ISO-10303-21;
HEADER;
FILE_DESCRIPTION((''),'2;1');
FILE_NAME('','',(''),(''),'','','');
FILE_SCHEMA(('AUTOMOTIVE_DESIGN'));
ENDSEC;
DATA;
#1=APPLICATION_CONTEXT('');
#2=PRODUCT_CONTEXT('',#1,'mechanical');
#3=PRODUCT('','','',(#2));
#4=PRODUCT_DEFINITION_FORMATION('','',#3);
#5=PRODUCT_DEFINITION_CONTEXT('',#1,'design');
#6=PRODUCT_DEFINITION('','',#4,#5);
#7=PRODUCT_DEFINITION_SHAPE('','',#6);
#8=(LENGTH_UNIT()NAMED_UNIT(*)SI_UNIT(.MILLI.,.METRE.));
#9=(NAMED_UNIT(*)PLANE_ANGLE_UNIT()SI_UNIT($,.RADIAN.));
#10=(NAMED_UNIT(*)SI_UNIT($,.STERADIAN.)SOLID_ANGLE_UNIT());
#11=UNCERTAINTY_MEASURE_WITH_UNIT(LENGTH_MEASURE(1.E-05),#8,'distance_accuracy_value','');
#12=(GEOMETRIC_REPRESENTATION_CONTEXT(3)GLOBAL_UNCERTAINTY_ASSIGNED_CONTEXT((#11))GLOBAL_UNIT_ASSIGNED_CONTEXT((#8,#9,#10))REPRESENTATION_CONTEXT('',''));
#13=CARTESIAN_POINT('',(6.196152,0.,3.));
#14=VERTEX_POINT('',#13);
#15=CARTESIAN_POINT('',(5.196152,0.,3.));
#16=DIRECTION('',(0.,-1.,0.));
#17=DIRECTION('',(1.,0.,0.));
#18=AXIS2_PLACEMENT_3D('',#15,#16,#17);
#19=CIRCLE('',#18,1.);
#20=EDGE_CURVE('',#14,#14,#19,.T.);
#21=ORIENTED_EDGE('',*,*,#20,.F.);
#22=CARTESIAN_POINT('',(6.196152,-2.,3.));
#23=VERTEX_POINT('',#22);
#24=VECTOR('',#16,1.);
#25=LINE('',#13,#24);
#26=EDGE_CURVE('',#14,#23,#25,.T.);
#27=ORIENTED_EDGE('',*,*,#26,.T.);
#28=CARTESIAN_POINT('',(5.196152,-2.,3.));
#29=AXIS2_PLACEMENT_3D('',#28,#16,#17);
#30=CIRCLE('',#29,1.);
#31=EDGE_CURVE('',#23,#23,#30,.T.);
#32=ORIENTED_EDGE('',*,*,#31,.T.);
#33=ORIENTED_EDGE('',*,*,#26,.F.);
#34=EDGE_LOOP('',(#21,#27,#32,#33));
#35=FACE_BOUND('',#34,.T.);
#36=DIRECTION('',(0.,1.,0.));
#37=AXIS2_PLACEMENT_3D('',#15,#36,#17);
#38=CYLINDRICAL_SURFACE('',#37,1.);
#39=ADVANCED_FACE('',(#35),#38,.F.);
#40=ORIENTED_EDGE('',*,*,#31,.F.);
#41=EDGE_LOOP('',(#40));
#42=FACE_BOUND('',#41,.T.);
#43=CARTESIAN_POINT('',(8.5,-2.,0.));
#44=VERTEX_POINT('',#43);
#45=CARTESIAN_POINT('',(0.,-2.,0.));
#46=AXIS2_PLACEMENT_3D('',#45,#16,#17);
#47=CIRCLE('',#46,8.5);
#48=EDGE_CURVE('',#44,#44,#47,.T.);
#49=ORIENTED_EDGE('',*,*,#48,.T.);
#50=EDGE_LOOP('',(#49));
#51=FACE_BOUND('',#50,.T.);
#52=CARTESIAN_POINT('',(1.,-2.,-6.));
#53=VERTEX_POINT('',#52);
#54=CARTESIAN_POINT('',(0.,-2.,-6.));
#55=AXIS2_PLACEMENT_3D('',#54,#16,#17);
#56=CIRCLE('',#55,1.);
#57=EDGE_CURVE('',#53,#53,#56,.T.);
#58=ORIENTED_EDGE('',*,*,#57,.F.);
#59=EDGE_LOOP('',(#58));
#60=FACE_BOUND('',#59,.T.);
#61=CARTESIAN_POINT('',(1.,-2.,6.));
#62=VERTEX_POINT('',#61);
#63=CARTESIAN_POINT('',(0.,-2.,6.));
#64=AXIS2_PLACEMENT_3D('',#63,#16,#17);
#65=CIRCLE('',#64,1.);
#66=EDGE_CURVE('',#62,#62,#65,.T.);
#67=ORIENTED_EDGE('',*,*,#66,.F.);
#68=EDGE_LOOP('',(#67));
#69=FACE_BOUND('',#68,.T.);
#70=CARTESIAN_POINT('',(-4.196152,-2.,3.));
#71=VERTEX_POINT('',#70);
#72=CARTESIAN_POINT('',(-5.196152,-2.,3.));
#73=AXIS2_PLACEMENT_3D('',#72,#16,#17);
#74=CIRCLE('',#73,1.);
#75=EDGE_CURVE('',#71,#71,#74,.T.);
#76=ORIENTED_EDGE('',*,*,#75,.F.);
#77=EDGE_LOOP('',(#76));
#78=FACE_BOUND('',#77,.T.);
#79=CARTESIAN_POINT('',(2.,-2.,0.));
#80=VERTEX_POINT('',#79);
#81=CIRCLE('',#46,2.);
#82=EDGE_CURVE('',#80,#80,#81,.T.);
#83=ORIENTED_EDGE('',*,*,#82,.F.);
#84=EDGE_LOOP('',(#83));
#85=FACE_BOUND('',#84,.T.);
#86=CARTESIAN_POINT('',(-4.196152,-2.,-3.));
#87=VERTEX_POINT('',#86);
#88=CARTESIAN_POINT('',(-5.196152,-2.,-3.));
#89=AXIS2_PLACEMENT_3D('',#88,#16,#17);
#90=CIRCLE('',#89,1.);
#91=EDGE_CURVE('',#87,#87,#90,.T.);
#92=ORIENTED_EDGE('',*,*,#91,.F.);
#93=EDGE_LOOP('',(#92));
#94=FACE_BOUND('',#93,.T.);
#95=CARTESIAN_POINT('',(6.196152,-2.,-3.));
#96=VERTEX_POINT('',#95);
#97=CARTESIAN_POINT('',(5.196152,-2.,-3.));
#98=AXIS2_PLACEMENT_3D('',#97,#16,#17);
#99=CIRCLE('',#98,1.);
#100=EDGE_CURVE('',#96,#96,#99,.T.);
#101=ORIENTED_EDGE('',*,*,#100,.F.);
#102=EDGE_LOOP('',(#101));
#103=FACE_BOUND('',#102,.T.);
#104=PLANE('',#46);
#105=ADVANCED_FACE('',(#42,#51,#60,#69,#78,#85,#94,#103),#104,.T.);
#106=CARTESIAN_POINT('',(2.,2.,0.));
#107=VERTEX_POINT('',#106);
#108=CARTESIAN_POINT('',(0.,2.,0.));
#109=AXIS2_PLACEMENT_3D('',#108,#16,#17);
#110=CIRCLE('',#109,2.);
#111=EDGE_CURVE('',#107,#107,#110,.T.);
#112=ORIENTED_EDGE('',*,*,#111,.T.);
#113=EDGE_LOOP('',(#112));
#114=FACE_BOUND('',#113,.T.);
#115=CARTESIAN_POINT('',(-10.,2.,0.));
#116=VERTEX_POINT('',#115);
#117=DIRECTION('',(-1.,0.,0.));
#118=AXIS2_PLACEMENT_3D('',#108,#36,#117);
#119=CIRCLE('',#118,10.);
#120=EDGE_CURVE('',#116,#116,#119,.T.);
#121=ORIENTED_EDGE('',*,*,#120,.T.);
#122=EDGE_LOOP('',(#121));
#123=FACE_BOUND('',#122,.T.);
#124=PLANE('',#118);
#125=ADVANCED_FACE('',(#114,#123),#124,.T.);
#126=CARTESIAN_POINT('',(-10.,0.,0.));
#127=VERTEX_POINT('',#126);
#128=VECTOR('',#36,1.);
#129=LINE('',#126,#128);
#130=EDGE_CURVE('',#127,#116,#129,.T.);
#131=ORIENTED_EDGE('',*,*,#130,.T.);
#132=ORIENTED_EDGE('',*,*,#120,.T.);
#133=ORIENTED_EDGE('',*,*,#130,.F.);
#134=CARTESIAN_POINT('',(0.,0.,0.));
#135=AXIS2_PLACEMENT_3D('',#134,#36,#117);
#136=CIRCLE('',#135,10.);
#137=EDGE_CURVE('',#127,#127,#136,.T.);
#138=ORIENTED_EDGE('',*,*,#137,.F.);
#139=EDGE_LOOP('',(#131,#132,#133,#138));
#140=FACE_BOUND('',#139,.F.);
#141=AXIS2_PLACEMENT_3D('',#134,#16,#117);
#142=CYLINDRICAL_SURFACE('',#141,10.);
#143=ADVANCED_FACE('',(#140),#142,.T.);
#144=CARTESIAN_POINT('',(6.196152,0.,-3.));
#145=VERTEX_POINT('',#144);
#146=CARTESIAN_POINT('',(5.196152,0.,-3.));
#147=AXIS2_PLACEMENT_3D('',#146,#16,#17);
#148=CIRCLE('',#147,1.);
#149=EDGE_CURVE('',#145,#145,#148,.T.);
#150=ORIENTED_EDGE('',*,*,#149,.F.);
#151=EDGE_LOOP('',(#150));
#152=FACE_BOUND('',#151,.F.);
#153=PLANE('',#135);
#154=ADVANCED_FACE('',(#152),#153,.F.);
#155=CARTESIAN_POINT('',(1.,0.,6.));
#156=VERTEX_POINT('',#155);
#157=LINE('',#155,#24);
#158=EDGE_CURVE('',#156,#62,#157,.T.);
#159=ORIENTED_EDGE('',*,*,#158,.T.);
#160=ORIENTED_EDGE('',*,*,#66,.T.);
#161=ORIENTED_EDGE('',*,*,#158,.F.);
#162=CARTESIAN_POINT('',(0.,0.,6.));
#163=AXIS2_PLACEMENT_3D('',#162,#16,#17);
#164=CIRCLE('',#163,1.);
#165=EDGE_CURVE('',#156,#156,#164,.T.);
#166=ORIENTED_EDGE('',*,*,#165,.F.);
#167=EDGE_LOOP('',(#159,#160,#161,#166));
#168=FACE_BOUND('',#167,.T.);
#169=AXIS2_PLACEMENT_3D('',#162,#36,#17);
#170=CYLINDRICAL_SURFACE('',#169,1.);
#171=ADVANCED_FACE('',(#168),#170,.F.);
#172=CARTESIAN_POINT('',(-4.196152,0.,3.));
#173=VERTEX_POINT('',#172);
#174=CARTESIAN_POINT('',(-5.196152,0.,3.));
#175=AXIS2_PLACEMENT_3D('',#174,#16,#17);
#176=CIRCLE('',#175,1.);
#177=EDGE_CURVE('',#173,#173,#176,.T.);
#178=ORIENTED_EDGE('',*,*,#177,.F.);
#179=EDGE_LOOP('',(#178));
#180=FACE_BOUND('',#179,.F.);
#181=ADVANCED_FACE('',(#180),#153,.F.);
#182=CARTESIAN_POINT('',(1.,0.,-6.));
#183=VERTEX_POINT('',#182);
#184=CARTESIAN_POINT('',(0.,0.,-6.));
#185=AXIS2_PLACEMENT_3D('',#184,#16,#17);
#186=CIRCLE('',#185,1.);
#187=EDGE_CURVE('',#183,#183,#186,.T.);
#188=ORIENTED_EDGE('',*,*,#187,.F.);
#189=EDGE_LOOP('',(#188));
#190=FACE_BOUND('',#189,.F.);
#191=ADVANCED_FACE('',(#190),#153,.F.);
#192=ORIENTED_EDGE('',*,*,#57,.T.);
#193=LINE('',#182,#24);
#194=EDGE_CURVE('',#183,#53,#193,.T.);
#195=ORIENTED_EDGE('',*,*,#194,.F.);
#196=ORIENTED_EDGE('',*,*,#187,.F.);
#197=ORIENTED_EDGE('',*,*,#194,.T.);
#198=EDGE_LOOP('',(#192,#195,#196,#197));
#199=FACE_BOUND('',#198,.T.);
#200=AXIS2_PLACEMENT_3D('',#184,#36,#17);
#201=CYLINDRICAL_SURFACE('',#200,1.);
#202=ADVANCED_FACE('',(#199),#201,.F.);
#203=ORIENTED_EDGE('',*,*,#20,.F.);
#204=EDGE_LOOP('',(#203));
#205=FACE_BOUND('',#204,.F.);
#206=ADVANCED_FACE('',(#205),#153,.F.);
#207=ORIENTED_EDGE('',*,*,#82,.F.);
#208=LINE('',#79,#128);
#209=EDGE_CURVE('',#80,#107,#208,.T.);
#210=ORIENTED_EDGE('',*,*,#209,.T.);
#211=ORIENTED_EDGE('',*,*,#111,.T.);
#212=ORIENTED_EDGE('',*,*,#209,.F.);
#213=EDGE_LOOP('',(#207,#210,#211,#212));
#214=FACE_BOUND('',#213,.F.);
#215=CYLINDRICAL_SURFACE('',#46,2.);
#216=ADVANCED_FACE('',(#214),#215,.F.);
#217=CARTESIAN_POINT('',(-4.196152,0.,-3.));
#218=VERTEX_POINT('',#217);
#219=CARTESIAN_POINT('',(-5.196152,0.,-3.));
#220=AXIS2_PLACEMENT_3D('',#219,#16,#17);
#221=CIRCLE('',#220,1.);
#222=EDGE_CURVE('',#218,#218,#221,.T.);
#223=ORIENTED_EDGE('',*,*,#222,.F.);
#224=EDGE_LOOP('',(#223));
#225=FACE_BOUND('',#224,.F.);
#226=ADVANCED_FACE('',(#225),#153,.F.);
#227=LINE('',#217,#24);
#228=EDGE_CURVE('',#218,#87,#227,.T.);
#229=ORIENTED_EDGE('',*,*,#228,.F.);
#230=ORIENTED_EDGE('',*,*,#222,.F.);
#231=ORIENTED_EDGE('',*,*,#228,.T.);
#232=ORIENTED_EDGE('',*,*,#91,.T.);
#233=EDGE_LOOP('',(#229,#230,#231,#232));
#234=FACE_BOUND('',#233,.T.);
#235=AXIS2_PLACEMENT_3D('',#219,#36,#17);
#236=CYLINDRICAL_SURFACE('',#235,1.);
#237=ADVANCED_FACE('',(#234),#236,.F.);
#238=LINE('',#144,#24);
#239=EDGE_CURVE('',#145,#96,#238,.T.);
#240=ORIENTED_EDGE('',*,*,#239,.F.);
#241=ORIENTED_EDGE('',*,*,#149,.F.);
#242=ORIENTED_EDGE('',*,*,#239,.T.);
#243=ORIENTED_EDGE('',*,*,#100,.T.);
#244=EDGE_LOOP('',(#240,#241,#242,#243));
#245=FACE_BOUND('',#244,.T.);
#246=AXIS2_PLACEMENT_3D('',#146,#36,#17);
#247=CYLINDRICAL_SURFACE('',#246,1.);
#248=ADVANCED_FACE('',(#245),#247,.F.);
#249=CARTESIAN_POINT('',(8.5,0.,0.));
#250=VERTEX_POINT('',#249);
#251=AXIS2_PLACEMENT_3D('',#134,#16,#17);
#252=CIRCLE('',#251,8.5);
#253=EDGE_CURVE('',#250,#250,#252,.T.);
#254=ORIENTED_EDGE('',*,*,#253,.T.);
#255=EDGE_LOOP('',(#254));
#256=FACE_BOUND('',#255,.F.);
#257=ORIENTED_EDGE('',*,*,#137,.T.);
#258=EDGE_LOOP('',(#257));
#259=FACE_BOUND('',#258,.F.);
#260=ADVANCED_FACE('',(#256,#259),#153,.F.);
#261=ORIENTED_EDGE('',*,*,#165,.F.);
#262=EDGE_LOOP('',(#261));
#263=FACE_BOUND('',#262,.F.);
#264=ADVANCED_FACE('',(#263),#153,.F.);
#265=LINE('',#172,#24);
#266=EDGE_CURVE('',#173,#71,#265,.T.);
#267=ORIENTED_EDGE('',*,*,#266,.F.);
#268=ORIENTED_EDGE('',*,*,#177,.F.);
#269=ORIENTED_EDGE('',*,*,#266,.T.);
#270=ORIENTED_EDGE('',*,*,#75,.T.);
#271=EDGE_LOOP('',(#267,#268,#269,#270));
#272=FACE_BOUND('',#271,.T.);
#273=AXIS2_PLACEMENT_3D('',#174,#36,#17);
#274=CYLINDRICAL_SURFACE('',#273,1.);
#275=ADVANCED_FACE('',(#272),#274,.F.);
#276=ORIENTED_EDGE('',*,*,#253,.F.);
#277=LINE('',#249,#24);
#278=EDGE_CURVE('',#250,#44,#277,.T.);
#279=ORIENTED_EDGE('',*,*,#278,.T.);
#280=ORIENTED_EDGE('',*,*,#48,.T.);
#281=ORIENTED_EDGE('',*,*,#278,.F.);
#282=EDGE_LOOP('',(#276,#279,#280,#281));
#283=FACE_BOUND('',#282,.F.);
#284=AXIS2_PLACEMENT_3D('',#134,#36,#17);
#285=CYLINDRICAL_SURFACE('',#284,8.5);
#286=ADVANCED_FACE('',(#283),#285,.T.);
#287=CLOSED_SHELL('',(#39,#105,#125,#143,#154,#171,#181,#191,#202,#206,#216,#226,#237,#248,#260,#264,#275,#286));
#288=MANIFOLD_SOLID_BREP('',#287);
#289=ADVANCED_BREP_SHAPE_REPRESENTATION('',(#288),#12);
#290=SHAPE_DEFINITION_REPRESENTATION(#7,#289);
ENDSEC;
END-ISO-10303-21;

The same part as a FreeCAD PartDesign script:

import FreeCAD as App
import Part
import Sketcher
Q = App.Units.Quantity

doc = App.newDocument("Part")
body = doc.addObject("PartDesign::Body", "Body")

# Sketch on XZ plane
sketch1 = doc.addObject("Sketcher::SketchObject", "Sketch")
body.addObject(sketch1)
sketch1.AttachmentSupport = (doc.XZ_Plane, [""])
sketch1.MapMode = "FlatFace"
sketch1.addGeometry(Part.Circle(App.Vector(0, 0, 0), App.Vector(0, 0, 1), 8.5), False)
sketch1.addGeometry(Part.Circle(App.Vector(0, -6, 0), App.Vector(0, 0, 1), 1), False)
sketch1.addGeometry(Part.Circle(App.Vector(-5.2, -3, 0), App.Vector(0, 0, 1), 1), False)
sketch1.addGeometry(Part.Circle(App.Vector(5.2, -3, 0), App.Vector(0, 0, 1), 1), False)
sketch1.addGeometry(Part.Circle(App.Vector(-5.2, 3, 0), App.Vector(0, 0, 1), 1), False)
sketch1.addGeometry(Part.Circle(App.Vector(0, 6, 0), App.Vector(0, 0, 1), 1), False)
sketch1.addGeometry(Part.Circle(App.Vector(5.2, 3, 0), App.Vector(0, 0, 1), 1), False)
sketch1.addConstraint(Sketcher.Constraint("Coincident", 0, 3, -1, 1))
sketch1.addConstraint(Sketcher.Constraint("Equal", 1, 2))
sketch1.addConstraint(Sketcher.Constraint("Equal", 2, 3))
sketch1.addConstraint(Sketcher.Constraint("Equal", 3, 4))
sketch1.addConstraint(Sketcher.Constraint("Equal", 4, 5))
sketch1.addConstraint(Sketcher.Constraint("Equal", 5, 6))
sketch1.addConstraint(Sketcher.Constraint("Symmetric", 3, 3, 4, 3, -1, 1))
sketch1.addConstraint(Sketcher.Constraint("Symmetric", 1, 3, 5, 3, -1, 1))
sketch1.addConstraint(Sketcher.Constraint("Symmetric", 2, 3, 6, 3, -1, 1))
sketch1.addConstraint(Sketcher.Constraint("Symmetric", 2, 3, 3, 3, -2))
sketch1.addConstraint(Sketcher.Constraint("PointOnObject", 1, 3, -2))
sketch1.addConstraint(Sketcher.Constraint("Diameter", 0, Q("17 mm")))
sketch1.addConstraint(Sketcher.Constraint("Diameter", 1, Q("2 mm")))
sketch1.addConstraint(Sketcher.Constraint("DistanceY", 1, 3, -1, 1, Q("6 mm")))
sketch1.addConstraint(Sketcher.Constraint("DistanceY", 2, 3, -1, 1, Q("3 mm")))
sketch1.addConstraint(Sketcher.Constraint("DistanceX", 2, 3, -1, 1, Q("5.196152 mm")))
pad1 = doc.addObject("PartDesign::Pad", "Pad")
body.addObject(pad1)
pad1.Profile = sketch1
pad1.Length = 2

# Sketch on XZ plane
sketch2 = doc.addObject("Sketcher::SketchObject", "Sketch001")
body.addObject(sketch2)
sketch2.AttachmentSupport = (doc.XZ_Plane, [""])
sketch2.MapMode = "FlatFace"
sketch2.addGeometry(Part.Circle(App.Vector(0, 0, 0), App.Vector(0, 0, 1), 10), False)
sketch2.addConstraint(Sketcher.Constraint("Coincident", 0, 3, -1, 1))
sketch2.addConstraint(Sketcher.Constraint("Diameter", 0, Q("20 mm")))
pad2 = doc.addObject("PartDesign::Pad", "Pad001")
body.addObject(pad2)
pad2.Profile = sketch2
pad2.Length = 2
pad2.Reversed = True

# Sketch on XZ plane
sketch3 = doc.addObject("Sketcher::SketchObject", "Sketch002")
body.addObject(sketch3)
sketch3.AttachmentSupport = (doc.XZ_Plane, [""])
sketch3.MapMode = "FlatFace"
sketch3.AttachmentOffset = App.Placement(App.Vector(0, 0, 2), App.Rotation())
sketch3.addGeometry(Part.Circle(App.Vector(0, 0, 0), App.Vector(0, 0, 1), 2), False)
sketch3.addConstraint(Sketcher.Constraint("Coincident", 0, 3, -1, 1))
sketch3.addConstraint(Sketcher.Constraint("Diameter", 0, Q("4 mm")))
pocket1 = doc.addObject("PartDesign::Pocket", "Pocket")
body.addObject(pocket1)
pocket1.Profile = sketch3
pocket1.Type = "ThroughAll"

doc.recompute()
